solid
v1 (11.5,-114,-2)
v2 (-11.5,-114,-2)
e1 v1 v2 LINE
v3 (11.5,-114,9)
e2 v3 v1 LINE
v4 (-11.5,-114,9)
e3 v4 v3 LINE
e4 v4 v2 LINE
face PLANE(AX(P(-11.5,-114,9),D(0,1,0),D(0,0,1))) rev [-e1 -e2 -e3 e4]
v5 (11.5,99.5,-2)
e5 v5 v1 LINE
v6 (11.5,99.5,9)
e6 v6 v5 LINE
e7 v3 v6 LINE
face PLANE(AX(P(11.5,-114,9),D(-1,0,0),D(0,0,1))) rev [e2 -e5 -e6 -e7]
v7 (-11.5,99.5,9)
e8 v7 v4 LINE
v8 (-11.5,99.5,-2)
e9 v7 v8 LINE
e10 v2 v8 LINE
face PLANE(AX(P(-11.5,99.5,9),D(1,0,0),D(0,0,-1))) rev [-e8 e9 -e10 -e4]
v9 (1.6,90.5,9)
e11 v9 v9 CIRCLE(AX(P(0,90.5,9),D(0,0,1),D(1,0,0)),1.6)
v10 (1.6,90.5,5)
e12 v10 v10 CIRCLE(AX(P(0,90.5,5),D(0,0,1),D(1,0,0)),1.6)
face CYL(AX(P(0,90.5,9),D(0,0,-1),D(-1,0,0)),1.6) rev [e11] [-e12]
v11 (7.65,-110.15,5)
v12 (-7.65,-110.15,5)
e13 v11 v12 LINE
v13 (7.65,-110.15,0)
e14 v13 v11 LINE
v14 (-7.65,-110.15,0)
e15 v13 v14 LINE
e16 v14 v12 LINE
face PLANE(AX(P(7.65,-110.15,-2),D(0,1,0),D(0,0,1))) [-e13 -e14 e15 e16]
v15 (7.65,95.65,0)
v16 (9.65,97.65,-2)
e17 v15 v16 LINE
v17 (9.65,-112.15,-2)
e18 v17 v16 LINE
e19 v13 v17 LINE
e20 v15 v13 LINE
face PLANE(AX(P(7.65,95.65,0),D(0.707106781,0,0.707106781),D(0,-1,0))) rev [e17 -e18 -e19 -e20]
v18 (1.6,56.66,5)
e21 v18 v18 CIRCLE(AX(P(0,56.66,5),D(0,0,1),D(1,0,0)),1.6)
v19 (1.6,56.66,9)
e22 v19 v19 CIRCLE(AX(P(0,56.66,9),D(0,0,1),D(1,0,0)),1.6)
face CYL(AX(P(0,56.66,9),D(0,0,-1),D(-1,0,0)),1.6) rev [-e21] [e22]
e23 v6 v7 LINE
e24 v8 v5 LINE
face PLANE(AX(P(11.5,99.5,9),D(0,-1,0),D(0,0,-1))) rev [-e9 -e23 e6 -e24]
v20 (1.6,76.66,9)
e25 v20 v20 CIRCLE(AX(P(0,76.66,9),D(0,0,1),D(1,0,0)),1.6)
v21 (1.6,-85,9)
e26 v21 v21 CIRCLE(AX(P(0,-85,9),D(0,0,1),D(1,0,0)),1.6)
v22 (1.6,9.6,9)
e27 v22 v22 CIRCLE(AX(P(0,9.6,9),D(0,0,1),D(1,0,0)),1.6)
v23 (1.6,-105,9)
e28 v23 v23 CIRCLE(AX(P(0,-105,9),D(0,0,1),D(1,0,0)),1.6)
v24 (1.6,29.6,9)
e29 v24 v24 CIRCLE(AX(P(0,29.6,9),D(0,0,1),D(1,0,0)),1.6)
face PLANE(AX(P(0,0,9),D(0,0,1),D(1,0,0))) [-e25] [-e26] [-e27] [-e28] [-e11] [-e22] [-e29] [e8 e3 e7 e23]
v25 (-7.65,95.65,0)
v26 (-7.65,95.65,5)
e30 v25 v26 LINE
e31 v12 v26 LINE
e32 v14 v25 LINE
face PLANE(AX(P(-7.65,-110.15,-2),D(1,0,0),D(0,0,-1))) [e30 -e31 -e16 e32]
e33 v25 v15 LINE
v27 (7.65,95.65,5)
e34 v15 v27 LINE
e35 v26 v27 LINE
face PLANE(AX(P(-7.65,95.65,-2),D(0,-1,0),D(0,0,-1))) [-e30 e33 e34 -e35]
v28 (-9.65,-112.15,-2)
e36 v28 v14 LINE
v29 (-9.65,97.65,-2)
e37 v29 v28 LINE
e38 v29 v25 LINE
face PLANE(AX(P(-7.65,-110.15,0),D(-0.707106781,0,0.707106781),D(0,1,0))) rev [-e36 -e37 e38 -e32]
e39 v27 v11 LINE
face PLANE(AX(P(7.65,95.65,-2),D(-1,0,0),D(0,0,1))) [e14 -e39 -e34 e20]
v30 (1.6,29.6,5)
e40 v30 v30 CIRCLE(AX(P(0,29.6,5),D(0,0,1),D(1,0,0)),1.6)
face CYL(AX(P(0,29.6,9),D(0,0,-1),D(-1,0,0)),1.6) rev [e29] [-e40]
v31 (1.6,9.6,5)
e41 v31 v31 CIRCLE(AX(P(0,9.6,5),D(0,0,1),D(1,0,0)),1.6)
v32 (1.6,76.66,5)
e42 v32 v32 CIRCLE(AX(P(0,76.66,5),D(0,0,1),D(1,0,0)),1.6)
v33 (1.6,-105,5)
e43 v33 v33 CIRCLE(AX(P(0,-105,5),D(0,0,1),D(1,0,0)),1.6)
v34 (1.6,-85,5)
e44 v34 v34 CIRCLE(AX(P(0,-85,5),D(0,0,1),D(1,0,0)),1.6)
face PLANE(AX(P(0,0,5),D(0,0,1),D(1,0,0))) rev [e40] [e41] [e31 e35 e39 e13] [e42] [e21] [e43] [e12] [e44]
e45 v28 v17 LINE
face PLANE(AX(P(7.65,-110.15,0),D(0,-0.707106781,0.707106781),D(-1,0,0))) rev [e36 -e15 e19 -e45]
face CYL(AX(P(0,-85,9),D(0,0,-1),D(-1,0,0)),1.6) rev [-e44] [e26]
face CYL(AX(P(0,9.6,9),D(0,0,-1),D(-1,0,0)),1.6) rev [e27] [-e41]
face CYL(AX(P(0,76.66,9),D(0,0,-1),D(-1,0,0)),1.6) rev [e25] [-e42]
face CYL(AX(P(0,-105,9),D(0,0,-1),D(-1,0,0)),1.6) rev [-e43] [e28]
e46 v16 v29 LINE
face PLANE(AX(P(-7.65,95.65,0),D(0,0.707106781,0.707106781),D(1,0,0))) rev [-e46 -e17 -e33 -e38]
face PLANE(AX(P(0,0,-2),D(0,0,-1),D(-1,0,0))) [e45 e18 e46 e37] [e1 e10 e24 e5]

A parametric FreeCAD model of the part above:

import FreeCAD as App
import Part
import Sketcher

V = App.Vector


def edges_at(feature, points):
    """Names of the edges that pass closest to the given points."""
    edges = feature.Shape.Edges
    near = lambda p: min(range(len(edges)), key=lambda i: edges[i].distToShape(Part.Vertex(*p))[0])
    return sorted({f"Edge{near(p) + 1}" for p in points})


def add_polygon(sketch, points):
    """Adds a closed chain of lines whose ends are joined by coincident constraints."""
    first, n = sketch.GeometryCount, len(points)
    for a, b in zip(points, points[1:] + points[:1]):
        sketch.addGeometry(Part.LineSegment(App.Vector(*a, 0), App.Vector(*b, 0)), False)
    for i in range(n):
        sketch.addConstraint(Sketcher.Constraint("Coincident", first + i, 2, first + (i + 1) % n, 1))

doc = App.newDocument("Part")
body = doc.addObject("PartDesign::Body", "Body")

# Sketch on XY plane
sketch1 = body.newObject("Sketcher::SketchObject", "Sketch")
sketch1.AttachmentSupport = (doc.getObject("XY_Plane"), [""])
sketch1.MapMode = "FlatFace"
sketch1.AttachmentOffset = App.Placement(V(0, 0, 5), App.Rotation())
add_polygon(sketch1, [(-11.5, 99.5), (-11.5, -114), (11.5, -114), (11.5, 99.5)])  # lines 0-3
sketch1.addGeometry(Part.Circle(V(0, -105, 0), V(0, 0, 1), 1.6), False)  # 4
sketch1.addGeometry(Part.Circle(V(0, -85, 0), V(0, 0, 1), 1.6), False)  # 5
sketch1.addGeometry(Part.Circle(V(0, 9.6, 0), V(0, 0, 1), 1.6), False)  # 6
sketch1.addGeometry(Part.Circle(V(0, 29.6, 0), V(0, 0, 1), 1.6), False)  # 7
sketch1.addGeometry(Part.Circle(V(0, 56.7, 0), V(0, 0, 1), 1.6), False)  # 8
sketch1.addGeometry(Part.Circle(V(0, 76.7, 0), V(0, 0, 1), 1.6), False)  # 9
sketch1.addGeometry(Part.Circle(V(0, 90.5, 0), V(0, 0, 1), 1.6), False)  # 10
sketch1.addConstraint([
    Sketcher.Constraint("Vertical", 0),
    Sketcher.Constraint("Horizontal", 1),
    Sketcher.Constraint("Vertical", 2),
    Sketcher.Constraint("Horizontal", 3),
    Sketcher.Constraint("Equal", 4, 5),
    Sketcher.Constraint("Equal", 5, 6),
    Sketcher.Constraint("Equal", 6, 7),
    Sketcher.Constraint("Equal", 7, 8),
    Sketcher.Constraint("Equal", 8, 9),
    Sketcher.Constraint("Equal", 9, 10),
    Sketcher.Constraint("PointOnObject", 4, 3, -2),
    Sketcher.Constraint("PointOnObject", 5, 3, -2),
    Sketcher.Constraint("PointOnObject", 6, 3, -2),
    Sketcher.Constraint("PointOnObject", 7, 3, -2),
    Sketcher.Constraint("PointOnObject", 8, 3, -2),
    Sketcher.Constraint("PointOnObject", 9, 3, -2),
    Sketcher.Constraint("PointOnObject", 10, 3, -2),
    Sketcher.Constraint("Diameter", 4, 3.2),
    Sketcher.Constraint("DistanceX", 1, 1, 1, 2, 23.0),
    Sketcher.Constraint("DistanceY", 0, 2, 0, 1, 213.5),
    Sketcher.Constraint("DistanceY", 4, 3, -1, 1, 105.0),
    Sketcher.Constraint("DistanceY", 5, 3, -1, 1, 85.0),
    Sketcher.Constraint("DistanceY", 0, 2, -1, 1, 114.0),
    Sketcher.Constraint("DistanceY", 6, 3, 7, 3, 20.0),
    Sketcher.Constraint("DistanceY", 8, 3, 9, 3, 20.0),
    Sketcher.Constraint("DistanceY", 10, 3, 2, 2, 9.0),
    Sketcher.Constraint("DistanceY", -1, 1, 6, 3, 9.6),
    Sketcher.Constraint("DistanceX", 0, 2, -1, 1, 11.5),
    Sketcher.Constraint("DistanceY", -1, 1, 8, 3, 56.66),
])
pad1 = body.newObject("PartDesign::Pad", "Pad")
pad1.Profile = sketch1
pad1.Length = 4

# Sketch on XY plane
sketch2 = body.newObject("Sketcher::SketchObject", "Sketch001")
sketch2.AttachmentSupport = (doc.getObject("XY_Plane"), [""])
sketch2.MapMode = "FlatFace"
sketch2.AttachmentOffset = App.Placement(V(0, 0, 5), App.Rotation())
add_polygon(sketch2, [(12, 100), (12, -114), (-12, -114), (-12, 100)])  # lines 0-3
add_polygon(sketch2, [(-8, -110), (8, -110), (8, 96), (-8, 96)])  # lines 4-7
sketch2.addConstraint([
    Sketcher.Constraint("Vertical", 0),
    Sketcher.Constraint("Horizontal", 1),
    Sketcher.Constraint("Vertical", 2),
    Sketcher.Constraint("Horizontal", 3),
    Sketcher.Constraint("Horizontal", 4),
    Sketcher.Constraint("Vertical", 5),
    Sketcher.Constraint("Horizontal", 6),
    Sketcher.Constraint("Vertical", 7),
    Sketcher.Constraint("DistanceX", 1, 2, 1, 1, 23.0),
    Sketcher.Constraint("DistanceX", 4, 1, 4, 2, 15.3),
    Sketcher.Constraint("DistanceY", 0, 2, 0, 1, 213.5),
    Sketcher.Constraint("DistanceY", 5, 1, 5, 2, 205.8),
    Sketcher.Constraint("DistanceY", 0, 2, -1, 1, 114.0),
    Sketcher.Constraint("DistanceX", -1, 1, 0, 2, 11.5),
    Sketcher.Constraint("DistanceX", -1, 1, 4, 2, 7.65),
    Sketcher.Constraint("DistanceY", 4, 2, -1, 1, 110.15),
])
pad2 = body.newObject("PartDesign::Pad", "Pad001")
pad2.Profile = sketch2
pad2.Length = 7
pad2.Reversed = True
doc.recompute()

chamfer = body.newObject("PartDesign::Chamfer", "Chamfer")
chamfer.Base = (pad2, edges_at(pad2, [
    (0, -110.15, -2),
    (-7.65, -7.25, -2),
    (0, 95.65, -2),
    (7.65, -7.25, -2),
]))
chamfer.Size = 2

doc.recompute()
